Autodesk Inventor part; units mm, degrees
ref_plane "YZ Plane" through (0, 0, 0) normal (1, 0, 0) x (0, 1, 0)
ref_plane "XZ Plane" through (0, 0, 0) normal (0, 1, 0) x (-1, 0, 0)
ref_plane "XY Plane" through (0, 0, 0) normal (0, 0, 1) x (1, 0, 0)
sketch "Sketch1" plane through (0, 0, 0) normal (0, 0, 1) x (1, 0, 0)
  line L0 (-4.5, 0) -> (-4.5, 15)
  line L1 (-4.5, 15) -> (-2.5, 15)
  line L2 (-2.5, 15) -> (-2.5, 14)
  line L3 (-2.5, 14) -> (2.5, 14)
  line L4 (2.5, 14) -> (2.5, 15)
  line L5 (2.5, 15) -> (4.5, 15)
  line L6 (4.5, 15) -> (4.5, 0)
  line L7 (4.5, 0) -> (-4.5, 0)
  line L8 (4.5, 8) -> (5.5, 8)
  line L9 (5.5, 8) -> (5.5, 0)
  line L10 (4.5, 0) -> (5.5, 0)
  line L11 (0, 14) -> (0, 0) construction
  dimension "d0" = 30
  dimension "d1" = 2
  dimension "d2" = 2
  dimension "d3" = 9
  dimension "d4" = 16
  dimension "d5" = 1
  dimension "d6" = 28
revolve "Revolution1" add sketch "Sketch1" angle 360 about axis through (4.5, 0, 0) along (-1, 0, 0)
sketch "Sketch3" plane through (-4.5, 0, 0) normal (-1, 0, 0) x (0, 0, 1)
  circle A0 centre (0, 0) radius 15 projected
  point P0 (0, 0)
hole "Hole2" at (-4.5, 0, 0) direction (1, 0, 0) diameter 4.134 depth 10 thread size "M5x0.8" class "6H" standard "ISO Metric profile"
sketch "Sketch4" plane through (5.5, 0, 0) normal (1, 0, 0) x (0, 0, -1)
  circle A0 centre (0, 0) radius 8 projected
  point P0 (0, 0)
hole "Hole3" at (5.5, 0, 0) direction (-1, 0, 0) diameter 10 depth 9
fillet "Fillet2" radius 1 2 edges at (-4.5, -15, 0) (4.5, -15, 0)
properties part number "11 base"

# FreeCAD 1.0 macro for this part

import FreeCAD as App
import Part
import Sketcher
from FreeCAD import Vector


def edges_at(feature, points):
    """Names of the edges that pass closest to the given points."""
    edges = feature.Shape.Edges
    near = lambda p: min(range(len(edges)), key=lambda i: edges[i].distToShape(Part.Vertex(*p))[0])
    return sorted({f"Edge{near(p) + 1}" for p in points})

doc = App.newDocument("Part")
body = doc.addObject("PartDesign::Body", "Body")

# Sketch on XY plane
sketch1 = body.newObject("Sketcher::SketchObject", "Sketch")
sketch1.AttachmentSupport = (doc.getObject("XY_Plane"), [""])
sketch1.MapMode = "FlatFace"
sketch1.addGeometry([
    Part.LineSegment(Vector(-4.5, 15, 0), Vector(-4.5, 0, 0)),  # 0
    Part.LineSegment(Vector(-4.5, 0, 0), Vector(5.5, 0, 0)),  # 1
    Part.LineSegment(Vector(5.5, 0, 0), Vector(5.5, 8, 0)),  # 2
    Part.LineSegment(Vector(5.5, 8, 0), Vector(4.5, 8, 0)),  # 3
    Part.LineSegment(Vector(4.5, 8, 0), Vector(4.5, 15, 0)),  # 4
    Part.LineSegment(Vector(4.5, 15, 0), Vector(2.5, 15, 0)),  # 5
    Part.LineSegment(Vector(2.5, 15, 0), Vector(2.5, 14, 0)),  # 6
    Part.LineSegment(Vector(2.5, 14, 0), Vector(-2.5, 14, 0)),  # 7
    Part.LineSegment(Vector(-2.5, 14, 0), Vector(-2.5, 15, 0)),  # 8
    Part.LineSegment(Vector(-2.5, 15, 0), Vector(-4.5, 15, 0)),  # 9
], False)
sketch1.addConstraint([
    Sketcher.Constraint("Coincident", 0, 2, 1, 1),
    Sketcher.Constraint("Coincident", 1, 2, 2, 1),
    Sketcher.Constraint("Coincident", 2, 2, 3, 1),
    Sketcher.Constraint("Coincident", 3, 2, 4, 1),
    Sketcher.Constraint("Coincident", 4, 2, 5, 1),
    Sketcher.Constraint("Coincident", 5, 2, 6, 1),
    Sketcher.Constraint("Coincident", 6, 2, 7, 1),
    Sketcher.Constraint("Coincident", 7, 2, 8, 1),
    Sketcher.Constraint("Coincident", 8, 2, 9, 1),
    Sketcher.Constraint("Coincident", 9, 2, 0, 1),
    Sketcher.Constraint("Vertical", 0),
    Sketcher.Constraint("Horizontal", 1),
    Sketcher.Constraint("Vertical", 2),
    Sketcher.Constraint("Horizontal", 3),
    Sketcher.Constraint("Vertical", 4),
    Sketcher.Constraint("Horizontal", 5),
    Sketcher.Constraint("Vertical", 6),
    Sketcher.Constraint("Horizontal", 7),
    Sketcher.Constraint("Vertical", 8),
    Sketcher.Constraint("Horizontal", 9),
    Sketcher.Constraint("Symmetric", 5, 2, 8, 2, -2),
    Sketcher.Constraint("PointOnObject", 0, 2, -1),
    Sketcher.Constraint("Equal", 5, 9),
    Sketcher.Constraint("Equal", 3, 6),
    Sketcher.Constraint("DistanceX", 3, 2, 3, 1, 1.0),
    Sketcher.Constraint("DistanceX", 5, 2, 5, 1, 2.0),
    Sketcher.Constraint("DistanceX", 0, 2, 3, 2, 9.0),
    Sketcher.Constraint("DistanceY", 0, 2, 0, 1, 15.0),
    Sketcher.Constraint("DistanceY", 2, 1, 2, 2, 8.0),
])
revolution = body.newObject("PartDesign::Revolution", "Revolution")
revolution.Profile = sketch1
revolution.ReferenceAxis = (sketch1, ["H_Axis"])
revolution.Angle = 360

# Sketch on YZ plane
sketch2 = body.newObject("Sketcher::SketchObject", "Sketch001")
sketch2.AttachmentSupport = (doc.getObject("YZ_Plane"), [""])
sketch2.MapMode = "FlatFace"
sketch2.AttachmentOffset = App.Placement(Vector(0, 0, -4.5), App.Rotation())
sketch2.addGeometry(Part.Circle(Vector(0, 0, 0), Vector(0, 0, 1), 2.067), False)
sketch2.addConstraint([
    Sketcher.Constraint("Coincident", 0, 3, -1, 1),
    Sketcher.Constraint("Diameter", 0, 4.134),
])
doc.recompute()
hole = body.newObject("PartDesign::Hole", "Hole")
hole.Profile = sketch2
hole.ThreadType = "None"
hole.Diameter = 4.134
hole.DepthType = "Dimension"
hole.Depth = 10
hole.DrillPoint = "Flat"
hole.Reversed = True

# Sketch on YZ plane
sketch3 = body.newObject("Sketcher::SketchObject", "Sketch002")
sketch3.AttachmentSupport = (doc.getObject("YZ_Plane"), [""])
sketch3.MapMode = "FlatFace"
sketch3.AttachmentOffset = App.Placement(Vector(0, 0, 5.5), App.Rotation())
sketch3.addGeometry(Part.Circle(Vector(0, 0, 0), Vector(0, 0, 1), 5), False)
sketch3.addConstraint([
    Sketcher.Constraint("Coincident", 0, 3, -1, 1),
    Sketcher.Constraint("Diameter", 0, 10.0),
])
doc.recompute()
hole2 = body.newObject("PartDesign::Hole", "Hole001")
hole2.Profile = sketch3
hole2.ThreadType = "None"
hole2.Diameter = 10
hole2.DepthType = "Dimension"
hole2.Depth = 9
hole2.DrillPoint = "Flat"
doc.recompute()

fillet = body.newObject("PartDesign::Fillet", "Fillet")
fillet.Base = (hole2, edges_at(hole2, [(-4.5, -15, 0), (4.5, -15, 0)]))
fillet.Radius = 1

doc.recompute()
